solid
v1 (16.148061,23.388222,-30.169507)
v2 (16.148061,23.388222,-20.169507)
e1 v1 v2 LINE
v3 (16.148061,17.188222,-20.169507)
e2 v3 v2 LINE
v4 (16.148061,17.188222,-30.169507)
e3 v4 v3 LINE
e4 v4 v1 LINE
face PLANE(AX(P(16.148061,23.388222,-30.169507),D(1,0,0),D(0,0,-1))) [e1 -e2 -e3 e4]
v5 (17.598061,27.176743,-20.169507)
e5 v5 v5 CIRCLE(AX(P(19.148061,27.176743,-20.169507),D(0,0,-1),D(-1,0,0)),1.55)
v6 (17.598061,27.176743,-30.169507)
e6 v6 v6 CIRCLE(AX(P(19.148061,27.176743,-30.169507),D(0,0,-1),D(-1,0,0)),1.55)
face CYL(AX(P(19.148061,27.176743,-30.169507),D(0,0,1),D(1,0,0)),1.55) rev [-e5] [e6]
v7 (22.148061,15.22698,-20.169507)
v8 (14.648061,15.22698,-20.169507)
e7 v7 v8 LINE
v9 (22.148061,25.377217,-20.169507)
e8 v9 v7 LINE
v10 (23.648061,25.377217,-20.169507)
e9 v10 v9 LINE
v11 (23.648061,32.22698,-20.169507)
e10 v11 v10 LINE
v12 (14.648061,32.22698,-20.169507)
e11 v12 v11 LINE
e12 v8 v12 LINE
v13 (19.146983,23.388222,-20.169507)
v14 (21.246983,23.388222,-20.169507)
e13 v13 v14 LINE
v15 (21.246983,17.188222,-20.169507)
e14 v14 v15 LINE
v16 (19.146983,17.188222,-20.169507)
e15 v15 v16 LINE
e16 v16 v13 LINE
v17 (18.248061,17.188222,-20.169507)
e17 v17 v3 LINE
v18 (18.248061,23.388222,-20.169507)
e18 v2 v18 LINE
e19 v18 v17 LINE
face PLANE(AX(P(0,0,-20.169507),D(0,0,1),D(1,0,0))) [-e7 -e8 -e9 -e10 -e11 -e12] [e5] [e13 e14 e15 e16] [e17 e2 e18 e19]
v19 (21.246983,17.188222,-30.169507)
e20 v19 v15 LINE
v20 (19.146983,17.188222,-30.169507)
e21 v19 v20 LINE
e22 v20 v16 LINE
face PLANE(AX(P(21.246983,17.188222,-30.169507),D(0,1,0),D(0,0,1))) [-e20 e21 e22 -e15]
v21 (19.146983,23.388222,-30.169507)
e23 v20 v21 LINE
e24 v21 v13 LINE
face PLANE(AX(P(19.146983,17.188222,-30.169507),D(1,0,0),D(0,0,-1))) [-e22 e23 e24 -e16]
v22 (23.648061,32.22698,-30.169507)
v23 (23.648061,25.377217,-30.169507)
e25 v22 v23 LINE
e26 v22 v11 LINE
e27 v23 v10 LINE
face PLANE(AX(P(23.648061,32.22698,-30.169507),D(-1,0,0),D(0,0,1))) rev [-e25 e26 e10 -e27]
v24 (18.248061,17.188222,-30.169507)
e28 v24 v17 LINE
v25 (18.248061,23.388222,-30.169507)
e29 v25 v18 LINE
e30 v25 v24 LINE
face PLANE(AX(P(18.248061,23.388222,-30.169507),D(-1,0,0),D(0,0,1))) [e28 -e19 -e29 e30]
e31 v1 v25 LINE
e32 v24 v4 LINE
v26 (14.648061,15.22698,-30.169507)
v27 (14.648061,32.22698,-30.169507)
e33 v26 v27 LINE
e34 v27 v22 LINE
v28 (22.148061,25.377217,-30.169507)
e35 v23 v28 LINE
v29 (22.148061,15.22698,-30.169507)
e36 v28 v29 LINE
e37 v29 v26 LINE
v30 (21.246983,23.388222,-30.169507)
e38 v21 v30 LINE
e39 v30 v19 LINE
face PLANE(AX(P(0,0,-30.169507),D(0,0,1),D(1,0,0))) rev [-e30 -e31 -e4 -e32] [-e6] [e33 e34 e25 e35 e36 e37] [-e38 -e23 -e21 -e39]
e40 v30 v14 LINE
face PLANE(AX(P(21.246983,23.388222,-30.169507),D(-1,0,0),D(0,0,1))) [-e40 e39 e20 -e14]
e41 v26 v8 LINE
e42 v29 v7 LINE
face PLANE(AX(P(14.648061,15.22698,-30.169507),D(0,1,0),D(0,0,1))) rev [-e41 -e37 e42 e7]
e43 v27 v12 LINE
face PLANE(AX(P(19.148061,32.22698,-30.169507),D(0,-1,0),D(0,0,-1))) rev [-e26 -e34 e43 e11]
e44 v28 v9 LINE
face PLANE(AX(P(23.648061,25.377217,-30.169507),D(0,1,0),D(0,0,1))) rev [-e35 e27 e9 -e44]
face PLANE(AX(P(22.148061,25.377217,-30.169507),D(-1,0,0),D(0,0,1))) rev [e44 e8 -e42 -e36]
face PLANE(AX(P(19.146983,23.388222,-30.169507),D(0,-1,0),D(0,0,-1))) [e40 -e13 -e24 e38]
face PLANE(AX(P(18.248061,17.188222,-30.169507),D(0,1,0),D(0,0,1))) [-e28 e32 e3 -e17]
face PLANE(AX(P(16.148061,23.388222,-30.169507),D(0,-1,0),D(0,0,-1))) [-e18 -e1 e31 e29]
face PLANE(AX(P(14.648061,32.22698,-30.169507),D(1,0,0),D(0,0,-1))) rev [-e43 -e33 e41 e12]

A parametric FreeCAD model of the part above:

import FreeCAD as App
import Part
import Sketcher
from FreeCAD import Vector
Q = App.Units.Quantity


def add_polygon(sketch, points):
    """Adds a closed chain of lines whose ends are joined by coincident constraints."""
    first, n = sketch.GeometryCount, len(points)
    for a, b in zip(points, points[1:] + points[:1]):
        sketch.addGeometry(Part.LineSegment(App.Vector(*a, 0), App.Vector(*b, 0)), False)
    for i in range(n):
        sketch.addConstraint(Sketcher.Constraint("Coincident", first + i, 2, first + (i + 1) % n, 1))

doc = App.newDocument("Part")
body = doc.addObject("PartDesign::Body", "Body")

sketch1 = doc.addObject("Sketcher::SketchObject", "Sketch")
body.addObject(sketch1)
sketch1.AttachmentSupport = (doc.XY_Plane, [""])
sketch1.MapMode = "FlatFace"
sketch1.AttachmentOffset = App.Placement(Vector(0, 0, -20.169507), App.Rotation())
add_polygon(sketch1, [(22.148061, 15.22698), (14.648061, 15.22698), (14.648061, 32.22698), (23.648061, 32.22698), (23.648061, 25.377217), (22.148061, 25.377217)])
add_polygon(sketch1, [(19.146983, 17.188222), (21.246983, 17.188222), (21.246983, 23.388222), (19.146983, 23.388222)])
add_polygon(sketch1, [(16.148061, 17.188222), (18.248061, 17.188222), (18.248061, 23.388222), (16.148061, 23.388222)])
sketch1.addGeometry(Part.Circle(Vector(19.148061, 27.176743, 0), Vector(0, 0, 1), 1.55), False)
sketch1.addConstraint(Sketcher.Constraint("Horizontal", 0))
sketch1.addConstraint(Sketcher.Constraint("Vertical", 1))
sketch1.addConstraint(Sketcher.Constraint("Horizontal", 2))
sketch1.addConstraint(Sketcher.Constraint("Vertical", 3))
sketch1.addConstraint(Sketcher.Constraint("Horizontal", 4))
sketch1.addConstraint(Sketcher.Constraint("Vertical", 5))
sketch1.addConstraint(Sketcher.Constraint("Horizontal", 6))
sketch1.addConstraint(Sketcher.Constraint("Vertical", 7))
sketch1.addConstraint(Sketcher.Constraint("Horizontal", 8))
sketch1.addConstraint(Sketcher.Constraint("Vertical", 9))
sketch1.addConstraint(Sketcher.Constraint("Horizontal", 10))
sketch1.addConstraint(Sketcher.Constraint("Vertical", 11))
sketch1.addConstraint(Sketcher.Constraint("Horizontal", 12))
sketch1.addConstraint(Sketcher.Constraint("Vertical", 13))
sketch1.addConstraint(Sketcher.Constraint("Horizontal", 9, 2, 10, 2))
sketch1.addConstraint(Sketcher.Constraint("Horizontal", 8, 2, 11, 2))
sketch1.addConstraint(Sketcher.Constraint("Equal", 8, 10))
sketch1.addConstraint(Sketcher.Constraint("Diameter", 14, Q("3.1 mm")))
sketch1.addConstraint(Sketcher.Constraint("DistanceX", 2, 1, 2, 2, Q("9 mm")))
sketch1.addConstraint(Sketcher.Constraint("DistanceY", 1, 1, 1, 2, Q("17 mm")))
sketch1.addConstraint(Sketcher.Constraint("DistanceX", 0, 2, 0, 1, Q("7.5 mm")))
sketch1.addConstraint(Sketcher.Constraint("DistanceX", 6, 1, 6, 2, Q("2.1 mm")))
sketch1.addConstraint(Sketcher.Constraint("DistanceY", 7, 1, 7, 2, Q("6.2 mm")))
sketch1.addConstraint(Sketcher.Constraint("DistanceX", 14, 3, 4, 2, Q("3 mm")))
sketch1.addConstraint(Sketcher.Constraint("DistanceX", 12, 2, 14, 3, Q("3 mm")))
sketch1.addConstraint(Sketcher.Constraint("DistanceY", 3, 2, 3, 1, Q("6.849763 mm")))
sketch1.addConstraint(Sketcher.Constraint("DistanceX", -1, 1, 14, 3, Q("19.148061 mm")))
sketch1.addConstraint(Sketcher.Constraint("DistanceY", -1, 1, 0, 2, Q("15.22698 mm")))
sketch1.addConstraint(Sketcher.Constraint("DistanceY", 6, 2, 14, 3, Q("9.988521 mm")))
sketch1.addConstraint(Sketcher.Constraint("DistanceY", -1, 1, 14, 3, Q("27.176743 mm")))
sketch1.addConstraint(Sketcher.Constraint("DistanceX", -1, 1, 6, 2, Q("21.246983 mm")))
pad1 = doc.addObject("PartDesign::Pad", "Pad")
body.addObject(pad1)
pad1.Profile = sketch1
pad1.Length = 10
pad1.Reversed = True

doc.recompute()
